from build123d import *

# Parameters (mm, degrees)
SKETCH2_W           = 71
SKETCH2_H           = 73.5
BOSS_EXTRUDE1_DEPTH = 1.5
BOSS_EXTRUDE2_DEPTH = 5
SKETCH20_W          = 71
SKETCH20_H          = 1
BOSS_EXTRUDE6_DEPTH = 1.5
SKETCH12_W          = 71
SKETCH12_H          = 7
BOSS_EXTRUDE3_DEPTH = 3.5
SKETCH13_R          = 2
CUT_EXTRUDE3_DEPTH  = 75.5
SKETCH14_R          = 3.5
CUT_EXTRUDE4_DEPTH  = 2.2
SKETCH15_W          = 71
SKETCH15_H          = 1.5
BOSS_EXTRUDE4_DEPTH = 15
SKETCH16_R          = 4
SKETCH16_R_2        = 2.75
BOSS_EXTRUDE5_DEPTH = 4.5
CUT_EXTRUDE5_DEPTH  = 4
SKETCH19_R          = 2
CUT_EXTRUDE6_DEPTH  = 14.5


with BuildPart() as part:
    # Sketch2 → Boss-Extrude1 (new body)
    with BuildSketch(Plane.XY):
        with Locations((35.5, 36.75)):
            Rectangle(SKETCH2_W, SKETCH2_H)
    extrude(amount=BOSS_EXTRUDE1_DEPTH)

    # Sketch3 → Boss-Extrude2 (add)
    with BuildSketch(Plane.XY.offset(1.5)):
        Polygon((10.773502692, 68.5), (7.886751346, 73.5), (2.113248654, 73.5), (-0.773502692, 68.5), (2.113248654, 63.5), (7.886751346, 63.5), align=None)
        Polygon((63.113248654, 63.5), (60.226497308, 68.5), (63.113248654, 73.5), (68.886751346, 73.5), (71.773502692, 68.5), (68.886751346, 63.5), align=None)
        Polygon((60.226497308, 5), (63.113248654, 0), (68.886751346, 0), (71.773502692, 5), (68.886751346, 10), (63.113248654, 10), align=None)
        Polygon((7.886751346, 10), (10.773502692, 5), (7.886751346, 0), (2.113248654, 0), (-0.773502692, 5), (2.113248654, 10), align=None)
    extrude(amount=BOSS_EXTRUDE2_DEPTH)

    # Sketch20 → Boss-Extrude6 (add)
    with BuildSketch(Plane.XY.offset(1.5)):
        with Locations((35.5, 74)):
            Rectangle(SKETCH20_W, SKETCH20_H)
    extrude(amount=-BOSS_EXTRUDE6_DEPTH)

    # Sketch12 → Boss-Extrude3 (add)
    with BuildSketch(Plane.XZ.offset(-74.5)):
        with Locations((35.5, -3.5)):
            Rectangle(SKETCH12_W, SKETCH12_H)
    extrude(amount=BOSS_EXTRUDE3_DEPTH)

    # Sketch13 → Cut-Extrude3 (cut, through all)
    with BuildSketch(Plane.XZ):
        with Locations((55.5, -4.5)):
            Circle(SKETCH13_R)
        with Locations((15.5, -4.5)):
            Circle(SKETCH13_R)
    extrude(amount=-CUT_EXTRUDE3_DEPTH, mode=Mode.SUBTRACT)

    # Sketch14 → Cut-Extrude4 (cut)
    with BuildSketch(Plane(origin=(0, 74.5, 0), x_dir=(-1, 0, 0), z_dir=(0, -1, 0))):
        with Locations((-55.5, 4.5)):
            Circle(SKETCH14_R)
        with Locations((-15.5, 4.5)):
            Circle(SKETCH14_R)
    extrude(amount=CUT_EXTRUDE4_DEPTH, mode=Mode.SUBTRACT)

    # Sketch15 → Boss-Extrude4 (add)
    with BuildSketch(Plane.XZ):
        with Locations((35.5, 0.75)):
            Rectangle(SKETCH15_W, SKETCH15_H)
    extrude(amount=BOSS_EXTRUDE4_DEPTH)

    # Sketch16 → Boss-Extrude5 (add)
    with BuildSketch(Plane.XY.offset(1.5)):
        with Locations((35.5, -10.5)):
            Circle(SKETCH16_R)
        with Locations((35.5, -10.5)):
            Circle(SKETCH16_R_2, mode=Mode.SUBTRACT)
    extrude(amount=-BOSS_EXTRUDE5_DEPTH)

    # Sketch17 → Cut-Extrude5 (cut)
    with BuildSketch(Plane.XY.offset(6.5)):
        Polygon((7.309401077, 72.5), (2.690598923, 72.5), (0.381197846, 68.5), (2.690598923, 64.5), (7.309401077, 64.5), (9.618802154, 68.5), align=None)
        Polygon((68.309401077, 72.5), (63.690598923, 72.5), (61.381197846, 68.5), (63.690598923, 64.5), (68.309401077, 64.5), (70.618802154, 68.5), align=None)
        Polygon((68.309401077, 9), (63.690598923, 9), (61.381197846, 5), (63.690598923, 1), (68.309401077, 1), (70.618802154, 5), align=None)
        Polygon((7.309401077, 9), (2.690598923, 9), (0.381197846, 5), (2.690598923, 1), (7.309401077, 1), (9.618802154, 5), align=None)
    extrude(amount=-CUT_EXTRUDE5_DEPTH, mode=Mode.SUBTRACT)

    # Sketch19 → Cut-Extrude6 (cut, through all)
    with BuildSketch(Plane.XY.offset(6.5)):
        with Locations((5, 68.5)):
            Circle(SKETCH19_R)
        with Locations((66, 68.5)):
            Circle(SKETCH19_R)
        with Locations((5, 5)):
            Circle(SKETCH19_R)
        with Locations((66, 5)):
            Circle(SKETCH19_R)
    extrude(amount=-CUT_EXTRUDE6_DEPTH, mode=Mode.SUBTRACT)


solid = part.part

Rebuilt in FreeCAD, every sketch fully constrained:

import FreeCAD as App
import Part
import Sketcher
from FreeCAD import Vector
Q = App.Units.Quantity


def add_polygon(sketch, points):
    """Adds a closed chain of lines whose ends are joined by coincident constraints."""
    first, n = sketch.GeometryCount, len(points)
    for a, b in zip(points, points[1:] + points[:1]):
        sketch.addGeometry(Part.LineSegment(App.Vector(*a, 0), App.Vector(*b, 0)), False)
    for i in range(n):
        sketch.addConstraint(Sketcher.Constraint("Coincident", first + i, 2, first + (i + 1) % n, 1))

doc = App.newDocument("Part")
body = doc.addObject("PartDesign::Body", "Body")

# Sketch on XY plane
sketch1 = doc.addObject("Sketcher::SketchObject", "Sketch")
body.addObject(sketch1)
sketch1.AttachmentSupport = (doc.XY_Plane, [""])
sketch1.MapMode = "FlatFace"
add_polygon(sketch1, [(0, 74), (0, 0), (71, 0), (71, 74)])  # lines 0-3
sketch1.addConstraint([
    Sketcher.Constraint("Vertical", 0),
    Sketcher.Constraint("Horizontal", 1),
    Sketcher.Constraint("Vertical", 2),
    Sketcher.Constraint("Horizontal", 3),
    Sketcher.Constraint("Coincident", 0, 2, -1, 1),
    Sketcher.Constraint("DistanceX", 1, 1, 1, 2, 71.0),
    Sketcher.Constraint("DistanceY", 0, 2, 0, 1, 73.5),
])
pad1 = doc.addObject("PartDesign::Pad", "Pad")
body.addObject(pad1)
pad1.Profile = sketch1
pad1.Length = 1.5

# Sketch on XY plane
sketch2 = doc.addObject("Sketcher::SketchObject", "Sketch001")
body.addObject(sketch2)
sketch2.AttachmentSupport = (doc.XY_Plane, [""])
sketch2.MapMode = "FlatFace"
sketch2.AttachmentOffset = App.Placement(Vector(0, 0, 1.5), App.Rotation())
add_polygon(sketch2, [(11, 68), (8, 74), (2, 74), (-1, 68), (2, 64), (8, 64)])  # lines 0-5
add_polygon(sketch2, [(60, 68), (63, 64), (69, 64), (72, 68), (69, 74), (63, 74)])  # lines 6-11
add_polygon(sketch2, [(60, 5), (63, 0), (69, 0), (72, 5), (69, 10), (63, 10)])  # lines 12-17
add_polygon(sketch2, [(11, 5), (8, 10), (2, 10), (-1, 5), (2, 0), (8, 0)])  # lines 18-23
sketch2.addConstraint([
    Sketcher.Constraint("Horizontal", 1),
    Sketcher.Constraint("Horizontal", 4),
    Sketcher.Constraint("Horizontal", 7),
    Sketcher.Constraint("Horizontal", 10),
    Sketcher.Constraint("Horizontal", 13),
    Sketcher.Constraint("Horizontal", 16),
    Sketcher.Constraint("Horizontal", 19),
    Sketcher.Constraint("Horizontal", 22),
    Sketcher.Constraint("PointOnObject", 12, 2, -1),
    Sketcher.Constraint("PointOnObject", 21, 2, -1),
    Sketcher.Constraint("Parallel", 0, 3),
    Sketcher.Constraint("Parallel", 2, 5),
    Sketcher.Constraint("Parallel", 3, 6),
    Sketcher.Constraint("Parallel", 5, 8),
    Sketcher.Constraint("Parallel", 6, 9),
    Sketcher.Constraint("Parallel", 8, 11),
    Sketcher.Constraint("Parallel", 9, 12),
    Sketcher.Constraint("Parallel", 11, 14),
    Sketcher.Constraint("Parallel", 12, 15),
    Sketcher.Constraint("Parallel", 14, 17),
    Sketcher.Constraint("Parallel", 15, 18),
    Sketcher.Constraint("Parallel", 17, 20),
    Sketcher.Constraint("Parallel", 18, 21),
    Sketcher.Constraint("Parallel", 20, 23),
    Sketcher.Constraint("Horizontal", 2, 2, 5, 2),
    Sketcher.Constraint("Horizontal", 4, 2, 6, 2),
    Sketcher.Constraint("Horizontal", 5, 2, 8, 2),
    Sketcher.Constraint("Horizontal", 1, 2, 9, 2),
    Sketcher.Constraint("Horizontal", 8, 2, 11, 2),
    Sketcher.Constraint("Horizontal", 14, 2, 17, 2),
    Sketcher.Constraint("Horizontal", 16, 2, 18, 2),
    Sketcher.Constraint("Horizontal", 17, 2, 20, 2),
    Sketcher.Constraint("Horizontal", 20, 2, 23, 2),
    Sketcher.Constraint("Vertical", 1, 2, 3, 2),
    Sketcher.Constraint("Vertical", 0, 2, 4, 2),
    Sketcher.Constraint("Vertical", 10, 2, 12, 2),
    Sketcher.Constraint("Vertical", 9, 2, 13, 2),
    Sketcher.Constraint("Vertical", 8, 2, 14, 2),
    Sketcher.Constraint("Vertical", 13, 2, 15, 2),
    Sketcher.Constraint("Vertical", 4, 2, 18, 2),
    Sketcher.Constraint("Vertical", 3, 2, 19, 2),
    Sketcher.Constraint("Equal", 4, 7),
    Sketcher.Constraint("Angle", 0, Q("120 deg")),
    Sketcher.Constraint("DistanceY", -1, 1, 14, 2, 5.0),
    Sketcher.Constraint("DistanceX", 3, 2, 6, 2, 61.0),
    Sketcher.Constraint("DistanceY", -1, 1, 0, 2, 73.5),
    Sketcher.Constraint("DistanceX", 1, 2, 1, 1, 5.773503),
    Sketcher.Constraint("DistanceX", -1, 1, 0, 2, 7.886751),
])
pad2 = doc.addObject("PartDesign::Pad", "Pad001")
body.addObject(pad2)
pad2.Profile = sketch2
pad2.Length = 5

# Sketch on XY plane
sketch3 = doc.addObject("Sketcher::SketchObject", "Sketch002")
body.addObject(sketch3)
sketch3.AttachmentSupport = (doc.XY_Plane, [""])
sketch3.MapMode = "FlatFace"
sketch3.AttachmentOffset = App.Placement(Vector(0, 0, 1.5), App.Rotation())
add_polygon(sketch3, [(0, 74.5), (0, 73.5), (71, 73.5), (71, 74.5)])  # lines 0-3
sketch3.addConstraint([
    Sketcher.Constraint("Vertical", 0),
    Sketcher.Constraint("Horizontal", 1),
    Sketcher.Constraint("Vertical", 2),
    Sketcher.Constraint("Horizontal", 3),
    Sketcher.Constraint("PointOnObject", 0, 2, -2),
    Sketcher.Constraint("DistanceX", 1, 1, 1, 2, 71.0),
    Sketcher.Constraint("DistanceY", 0, 2, 0, 1, 1.0),
    Sketcher.Constraint("DistanceY", -1, 1, 0, 2, 73.5),
])
pad3 = doc.addObject("PartDesign::Pad", "Pad002")
body.addObject(pad3)
pad3.Profile = sketch3
pad3.Length = 1.5
pad3.Reversed = True

# Sketch on XZ plane
sketch4 = doc.addObject("Sketcher::SketchObject", "Sketch003")
body.addObject(sketch4)
sketch4.AttachmentSupport = (doc.XZ_Plane, [""])
sketch4.MapMode = "FlatFace"
sketch4.AttachmentOffset = App.Placement(Vector(0, 0, -74.5), App.Rotation())
add_polygon(sketch4, [(0, 0), (0, -7), (71, -7), (71, 0)])  # lines 0-3
sketch4.addConstraint([
    Sketcher.Constraint("Vertical", 0),
    Sketcher.Constraint("Horizontal", 1),
    Sketcher.Constraint("Vertical", 2),
    Sketcher.Constraint("Horizontal", 3),
    Sketcher.Constraint("Coincident", 3, 2, -1, 1),
    Sketcher.Constraint("DistanceX", 1, 1, 1, 2, 71.0),
    Sketcher.Constraint("DistanceY", 0, 2, 0, 1, 7.0),
])
pad4 = doc.addObject("PartDesign::Pad", "Pad003")
body.addObject(pad4)
pad4.Profile = sketch4
pad4.Length = 3.5

# Sketch on XZ plane
sketch5 = doc.addObject("Sketcher::SketchObject", "Sketch004")
body.addObject(sketch5)
sketch5.AttachmentSupport = (doc.XZ_Plane, [""])
sketch5.MapMode = "FlatFace"
sketch5.addGeometry([
    Part.Circle(Vector(55.5, -4.5, 0), Vector(0, 0, 1), 2),
    Part.Circle(Vector(15.5, -4.5, 0), Vector(0, 0, 1), 2),
], False)
sketch5.addConstraint([
    Sketcher.Constraint("Equal", 0, 1),
    Sketcher.Constraint("Horizontal", 0, 3, 1, 3),
    Sketcher.Constraint("Diameter", 0, 4.0),
    Sketcher.Constraint("DistanceX", 1, 3, 0, 3, 40.0),
    Sketcher.Constraint("DistanceX", -1, 1, 0, 3, 55.5),
    Sketcher.Constraint("DistanceY", 0, 3, -1, 1, 4.5),
])
pocket1 = doc.addObject("PartDesign::Pocket", "Pocket")
body.addObject(pocket1)
pocket1.Profile = sketch5
pocket1.Type = "ThroughAll"

# Sketch on XZ plane
sketch6 = doc.addObject("Sketcher::SketchObject", "Sketch005")
body.addObject(sketch6)
sketch6.AttachmentSupport = (doc.XZ_Plane, [""])
sketch6.MapMode = "FlatFace"
sketch6.AttachmentOffset = App.Placement(Vector(0, 0, -74.5), App.Rotation())
sketch6.addGeometry([
    Part.Circle(Vector(55.5, -4.5, 0), Vector(0, 0, 1), 3.5),
    Part.Circle(Vector(15.5, -4.5, 0), Vector(0, 0, 1), 3.5),
], False)
sketch6.addConstraint([
    Sketcher.Constraint("Equal", 0, 1),
    Sketcher.Constraint("Horizontal", 0, 3, 1, 3),
    Sketcher.Constraint("Diameter", 0, 7.0),
    Sketcher.Constraint("DistanceX", 1, 3, 0, 3, 40.0),
    Sketcher.Constraint("DistanceX", -1, 1, 0, 3, 55.5),
    Sketcher.Constraint("DistanceY", 0, 3, -1, 1, 4.5),
])
pocket2 = doc.addObject("PartDesign::Pocket", "Pocket001")
body.addObject(pocket2)
pocket2.Profile = sketch6
pocket2.Length = 2.2
pocket2.Reversed = True

# Sketch on XZ plane
sketch7 = doc.addObject("Sketcher::SketchObject", "Sketch006")
body.addObject(sketch7)
sketch7.AttachmentSupport = (doc.XZ_Plane, [""])
sketch7.MapMode = "FlatFace"
add_polygon(sketch7, [(0, 1.5), (0, 0), (71, 0), (71, 1.5)])  # lines 0-3
sketch7.addConstraint([
    Sketcher.Constraint("Vertical", 0),
    Sketcher.Constraint("Horizontal", 1),
    Sketcher.Constraint("Vertical", 2),
    Sketcher.Constraint("Horizontal", 3),
    Sketcher.Constraint("Coincident", 0, 2, -1, 1),
    Sketcher.Constraint("DistanceX", 1, 1, 1, 2, 71.0),
    Sketcher.Constraint("DistanceY", 0, 2, 0, 1, 1.5),
])
pad5 = doc.addObject("PartDesign::Pad", "Pad004")
body.addObject(pad5)
pad5.Profile = sketch7
pad5.Length = 15

# Sketch on XY plane
sketch8 = doc.addObject("Sketcher::SketchObject", "Sketch007")
body.addObject(sketch8)
sketch8.AttachmentSupport = (doc.XY_Plane, [""])
sketch8.MapMode = "FlatFace"
sketch8.AttachmentOffset = App.Placement(Vector(0, 0, 1.5), App.Rotation())
sketch8.addGeometry([
    Part.Circle(Vector(35.5, -10.5, 0), Vector(0, 0, 1), 4),
    Part.Circle(Vector(35.5, -10.5, 0), Vector(0, 0, 1), 2.8),
], False)
sketch8.addConstraint([
    Sketcher.Constraint("Coincident", 1, 3, 0, 3),
    Sketcher.Constraint("Diameter", 0, 8.0),
    Sketcher.Constraint("Diameter", 1, 5.5),
    Sketcher.Constraint("DistanceX", -1, 1, 0, 3, 35.5),
    Sketcher.Constraint("DistanceY", 0, 3, -1, 1, 10.5),
])
pad6 = doc.addObject("PartDesign::Pad", "Pad005")
body.addObject(pad6)
pad6.Profile = sketch8
pad6.Length = 4.5
pad6.Reversed = True

# Sketch on XY plane
sketch9 = doc.addObject("Sketcher::SketchObject", "Sketch008")
body.addObject(sketch9)
sketch9.AttachmentSupport = (doc.XY_Plane, [""])
sketch9.MapMode = "FlatFace"
sketch9.AttachmentOffset = App.Placement(Vector(0, 0, 6.5), App.Rotation())
add_polygon(sketch9, [(7.3, 72.5), (2.7, 72.5), (0.4, 68.5), (2.7, 64.5), (7.3, 64.5), (9.6, 68.5)])  # lines 0-5
add_polygon(sketch9, [(68.3, 72.5), (63.7, 72.5), (61.4, 68.5), (63.7, 64.5), (68.3, 64.5), (70.6, 68.5)])  # lines 6-11
add_polygon(sketch9, [(68.3, 9), (63.7, 9), (61.4, 5), (63.7, 1), (68.3, 1), (70.6, 5)])  # lines 12-17
add_polygon(sketch9, [(7.3, 9), (2.7, 9), (0.4, 5), (2.7, 1), (7.3, 1), (9.6, 5)])  # lines 18-23
sketch9.addConstraint([
    Sketcher.Constraint("Horizontal", 0),
    Sketcher.Constraint("Horizontal", 3),
    Sketcher.Constraint("Horizontal", 6),
    Sketcher.Constraint("Horizontal", 9),
    Sketcher.Constraint("Horizontal", 12),
    Sketcher.Constraint("Horizontal", 15),
    Sketcher.Constraint("Horizontal", 18),
    Sketcher.Constraint("Horizontal", 21),
    Sketcher.Constraint("Parallel", 1, 4),
    Sketcher.Constraint("Parallel", 2, 5),
    Sketcher.Constraint("Parallel", 4, 7),
    Sketcher.Constraint("Parallel", 5, 8),
    Sketcher.Constraint("Parallel", 7, 10),
    Sketcher.Constraint("Parallel", 8, 11),
    Sketcher.Constraint("Parallel", 10, 13),
    Sketcher.Constraint("Parallel", 11, 14),
    Sketcher.Constraint("Parallel", 13, 16),
    Sketcher.Constraint("Parallel", 14, 17),
    Sketcher.Constraint("Parallel", 16, 19),
    Sketcher.Constraint("Parallel", 17, 20),
    Sketcher.Constraint("Parallel", 19, 22),
    Sketcher.Constraint("Parallel", 20, 23),
    Sketcher.Constraint("Horizontal", 1, 2, 4, 2),
    Sketcher.Constraint("Horizontal", 5, 2, 6, 2),
    Sketcher.Constraint("Horizontal", 4, 2, 7, 2),
    Sketcher.Constraint("Horizontal", 3, 2, 8, 2),
    Sketcher.Constraint("Horizontal", 7, 2, 10, 2),
    Sketcher.Constraint("Horizontal", 13, 2, 16, 2),
    Sketcher.Constraint("Horizontal", 17, 2, 18, 2),
    Sketcher.Constraint("Horizontal", 16, 2, 19, 2),
    Sketcher.Constraint("Horizontal", 15, 2, 20, 2),
    Sketcher.Constraint("Horizontal", 19, 2, 22, 2),
    Sketcher.Constraint("Vertical", 0, 2, 2, 2),
    Sketcher.Constraint("Vertical", 3, 2, 5, 2),
    Sketcher.Constraint("Vertical", 8, 2, 12, 2),
    Sketcher.Constraint("Vertical", 7, 2, 13, 2),
    Sketcher.Constraint("Vertical", 12, 2, 14, 2),
    Sketcher.Constraint("Vertical", 11, 2, 15, 2),
    Sketcher.Constraint("Vertical", 2, 2, 18, 2),
    Sketcher.Constraint("Vertical", 5, 2, 21, 2),
    Sketcher.Constraint("Equal", 3, 6),
    Sketcher.Constraint("Angle", 1, Q("-120 deg")),
    Sketcher.Constraint("DistanceY", -1, 1, 12, 2, 9.0),
    Sketcher.Constraint("DistanceY", -1, 1, 13, 2, 5.0),
    Sketcher.Constraint("DistanceX", 0, 2, 6, 2, 61.0),
    Sketcher.Constraint("DistanceY", -1, 1, 0, 2, 72.5),
    Sketcher.Constraint("DistanceX", -1, 1, 0, 2, 2.690599),
    Sketcher.Constraint("DistanceX", -1, 1, 3, 2, 7.309401),
])
pocket3 = doc.addObject("PartDesign::Pocket", "Pocket002")
body.addObject(pocket3)
pocket3.Profile = sketch9
pocket3.Length = 4

# Sketch on XY plane
sketch10 = doc.addObject("Sketcher::SketchObject", "Sketch009")
body.addObject(sketch10)
sketch10.AttachmentSupport = (doc.XY_Plane, [""])
sketch10.MapMode = "FlatFace"
sketch10.AttachmentOffset = App.Placement(Vector(0, 0, 6.5), App.Rotation())
sketch10.addGeometry([
    Part.Circle(Vector(5, 68.5, 0), Vector(0, 0, 1), 2),
    Part.Circle(Vector(66, 68.5, 0), Vector(0, 0, 1), 2),
    Part.Circle(Vector(5, 5, 0), Vector(0, 0, 1), 2),
    Part.Circle(Vector(66, 5, 0), Vector(0, 0, 1), 2),
], False)
sketch10.addConstraint([
    Sketcher.Constraint("Equal", 0, 1),
    Sketcher.Constraint("Equal", 1, 2),
    Sketcher.Constraint("Equal", 2, 3),
    Sketcher.Constraint("Horizontal", 0, 3, 1, 3),
    Sketcher.Constraint("Horizontal", 2, 3, 3, 3),
    Sketcher.Constraint("Vertical", 0, 3, 2, 3),
    Sketcher.Constraint("Vertical", 1, 3, 3, 3),
    Sketcher.Constraint("Diameter", 0, 4.0),
    Sketcher.Constraint("DistanceX", -1, 1, 0, 3, 5.0),
    Sketcher.Constraint("DistanceX", -1, 1, 1, 3, 66.0),
    Sketcher.Constraint("DistanceY", -1, 1, 2, 3, 5.0),
    Sketcher.Constraint("DistanceY", -1, 1, 0, 3, 68.5),
])
pocket4 = doc.addObject("PartDesign::Pocket", "Pocket003")
body.addObject(pocket4)
pocket4.Profile = sketch10
pocket4.Type = "ThroughAll"

doc.recompute()
